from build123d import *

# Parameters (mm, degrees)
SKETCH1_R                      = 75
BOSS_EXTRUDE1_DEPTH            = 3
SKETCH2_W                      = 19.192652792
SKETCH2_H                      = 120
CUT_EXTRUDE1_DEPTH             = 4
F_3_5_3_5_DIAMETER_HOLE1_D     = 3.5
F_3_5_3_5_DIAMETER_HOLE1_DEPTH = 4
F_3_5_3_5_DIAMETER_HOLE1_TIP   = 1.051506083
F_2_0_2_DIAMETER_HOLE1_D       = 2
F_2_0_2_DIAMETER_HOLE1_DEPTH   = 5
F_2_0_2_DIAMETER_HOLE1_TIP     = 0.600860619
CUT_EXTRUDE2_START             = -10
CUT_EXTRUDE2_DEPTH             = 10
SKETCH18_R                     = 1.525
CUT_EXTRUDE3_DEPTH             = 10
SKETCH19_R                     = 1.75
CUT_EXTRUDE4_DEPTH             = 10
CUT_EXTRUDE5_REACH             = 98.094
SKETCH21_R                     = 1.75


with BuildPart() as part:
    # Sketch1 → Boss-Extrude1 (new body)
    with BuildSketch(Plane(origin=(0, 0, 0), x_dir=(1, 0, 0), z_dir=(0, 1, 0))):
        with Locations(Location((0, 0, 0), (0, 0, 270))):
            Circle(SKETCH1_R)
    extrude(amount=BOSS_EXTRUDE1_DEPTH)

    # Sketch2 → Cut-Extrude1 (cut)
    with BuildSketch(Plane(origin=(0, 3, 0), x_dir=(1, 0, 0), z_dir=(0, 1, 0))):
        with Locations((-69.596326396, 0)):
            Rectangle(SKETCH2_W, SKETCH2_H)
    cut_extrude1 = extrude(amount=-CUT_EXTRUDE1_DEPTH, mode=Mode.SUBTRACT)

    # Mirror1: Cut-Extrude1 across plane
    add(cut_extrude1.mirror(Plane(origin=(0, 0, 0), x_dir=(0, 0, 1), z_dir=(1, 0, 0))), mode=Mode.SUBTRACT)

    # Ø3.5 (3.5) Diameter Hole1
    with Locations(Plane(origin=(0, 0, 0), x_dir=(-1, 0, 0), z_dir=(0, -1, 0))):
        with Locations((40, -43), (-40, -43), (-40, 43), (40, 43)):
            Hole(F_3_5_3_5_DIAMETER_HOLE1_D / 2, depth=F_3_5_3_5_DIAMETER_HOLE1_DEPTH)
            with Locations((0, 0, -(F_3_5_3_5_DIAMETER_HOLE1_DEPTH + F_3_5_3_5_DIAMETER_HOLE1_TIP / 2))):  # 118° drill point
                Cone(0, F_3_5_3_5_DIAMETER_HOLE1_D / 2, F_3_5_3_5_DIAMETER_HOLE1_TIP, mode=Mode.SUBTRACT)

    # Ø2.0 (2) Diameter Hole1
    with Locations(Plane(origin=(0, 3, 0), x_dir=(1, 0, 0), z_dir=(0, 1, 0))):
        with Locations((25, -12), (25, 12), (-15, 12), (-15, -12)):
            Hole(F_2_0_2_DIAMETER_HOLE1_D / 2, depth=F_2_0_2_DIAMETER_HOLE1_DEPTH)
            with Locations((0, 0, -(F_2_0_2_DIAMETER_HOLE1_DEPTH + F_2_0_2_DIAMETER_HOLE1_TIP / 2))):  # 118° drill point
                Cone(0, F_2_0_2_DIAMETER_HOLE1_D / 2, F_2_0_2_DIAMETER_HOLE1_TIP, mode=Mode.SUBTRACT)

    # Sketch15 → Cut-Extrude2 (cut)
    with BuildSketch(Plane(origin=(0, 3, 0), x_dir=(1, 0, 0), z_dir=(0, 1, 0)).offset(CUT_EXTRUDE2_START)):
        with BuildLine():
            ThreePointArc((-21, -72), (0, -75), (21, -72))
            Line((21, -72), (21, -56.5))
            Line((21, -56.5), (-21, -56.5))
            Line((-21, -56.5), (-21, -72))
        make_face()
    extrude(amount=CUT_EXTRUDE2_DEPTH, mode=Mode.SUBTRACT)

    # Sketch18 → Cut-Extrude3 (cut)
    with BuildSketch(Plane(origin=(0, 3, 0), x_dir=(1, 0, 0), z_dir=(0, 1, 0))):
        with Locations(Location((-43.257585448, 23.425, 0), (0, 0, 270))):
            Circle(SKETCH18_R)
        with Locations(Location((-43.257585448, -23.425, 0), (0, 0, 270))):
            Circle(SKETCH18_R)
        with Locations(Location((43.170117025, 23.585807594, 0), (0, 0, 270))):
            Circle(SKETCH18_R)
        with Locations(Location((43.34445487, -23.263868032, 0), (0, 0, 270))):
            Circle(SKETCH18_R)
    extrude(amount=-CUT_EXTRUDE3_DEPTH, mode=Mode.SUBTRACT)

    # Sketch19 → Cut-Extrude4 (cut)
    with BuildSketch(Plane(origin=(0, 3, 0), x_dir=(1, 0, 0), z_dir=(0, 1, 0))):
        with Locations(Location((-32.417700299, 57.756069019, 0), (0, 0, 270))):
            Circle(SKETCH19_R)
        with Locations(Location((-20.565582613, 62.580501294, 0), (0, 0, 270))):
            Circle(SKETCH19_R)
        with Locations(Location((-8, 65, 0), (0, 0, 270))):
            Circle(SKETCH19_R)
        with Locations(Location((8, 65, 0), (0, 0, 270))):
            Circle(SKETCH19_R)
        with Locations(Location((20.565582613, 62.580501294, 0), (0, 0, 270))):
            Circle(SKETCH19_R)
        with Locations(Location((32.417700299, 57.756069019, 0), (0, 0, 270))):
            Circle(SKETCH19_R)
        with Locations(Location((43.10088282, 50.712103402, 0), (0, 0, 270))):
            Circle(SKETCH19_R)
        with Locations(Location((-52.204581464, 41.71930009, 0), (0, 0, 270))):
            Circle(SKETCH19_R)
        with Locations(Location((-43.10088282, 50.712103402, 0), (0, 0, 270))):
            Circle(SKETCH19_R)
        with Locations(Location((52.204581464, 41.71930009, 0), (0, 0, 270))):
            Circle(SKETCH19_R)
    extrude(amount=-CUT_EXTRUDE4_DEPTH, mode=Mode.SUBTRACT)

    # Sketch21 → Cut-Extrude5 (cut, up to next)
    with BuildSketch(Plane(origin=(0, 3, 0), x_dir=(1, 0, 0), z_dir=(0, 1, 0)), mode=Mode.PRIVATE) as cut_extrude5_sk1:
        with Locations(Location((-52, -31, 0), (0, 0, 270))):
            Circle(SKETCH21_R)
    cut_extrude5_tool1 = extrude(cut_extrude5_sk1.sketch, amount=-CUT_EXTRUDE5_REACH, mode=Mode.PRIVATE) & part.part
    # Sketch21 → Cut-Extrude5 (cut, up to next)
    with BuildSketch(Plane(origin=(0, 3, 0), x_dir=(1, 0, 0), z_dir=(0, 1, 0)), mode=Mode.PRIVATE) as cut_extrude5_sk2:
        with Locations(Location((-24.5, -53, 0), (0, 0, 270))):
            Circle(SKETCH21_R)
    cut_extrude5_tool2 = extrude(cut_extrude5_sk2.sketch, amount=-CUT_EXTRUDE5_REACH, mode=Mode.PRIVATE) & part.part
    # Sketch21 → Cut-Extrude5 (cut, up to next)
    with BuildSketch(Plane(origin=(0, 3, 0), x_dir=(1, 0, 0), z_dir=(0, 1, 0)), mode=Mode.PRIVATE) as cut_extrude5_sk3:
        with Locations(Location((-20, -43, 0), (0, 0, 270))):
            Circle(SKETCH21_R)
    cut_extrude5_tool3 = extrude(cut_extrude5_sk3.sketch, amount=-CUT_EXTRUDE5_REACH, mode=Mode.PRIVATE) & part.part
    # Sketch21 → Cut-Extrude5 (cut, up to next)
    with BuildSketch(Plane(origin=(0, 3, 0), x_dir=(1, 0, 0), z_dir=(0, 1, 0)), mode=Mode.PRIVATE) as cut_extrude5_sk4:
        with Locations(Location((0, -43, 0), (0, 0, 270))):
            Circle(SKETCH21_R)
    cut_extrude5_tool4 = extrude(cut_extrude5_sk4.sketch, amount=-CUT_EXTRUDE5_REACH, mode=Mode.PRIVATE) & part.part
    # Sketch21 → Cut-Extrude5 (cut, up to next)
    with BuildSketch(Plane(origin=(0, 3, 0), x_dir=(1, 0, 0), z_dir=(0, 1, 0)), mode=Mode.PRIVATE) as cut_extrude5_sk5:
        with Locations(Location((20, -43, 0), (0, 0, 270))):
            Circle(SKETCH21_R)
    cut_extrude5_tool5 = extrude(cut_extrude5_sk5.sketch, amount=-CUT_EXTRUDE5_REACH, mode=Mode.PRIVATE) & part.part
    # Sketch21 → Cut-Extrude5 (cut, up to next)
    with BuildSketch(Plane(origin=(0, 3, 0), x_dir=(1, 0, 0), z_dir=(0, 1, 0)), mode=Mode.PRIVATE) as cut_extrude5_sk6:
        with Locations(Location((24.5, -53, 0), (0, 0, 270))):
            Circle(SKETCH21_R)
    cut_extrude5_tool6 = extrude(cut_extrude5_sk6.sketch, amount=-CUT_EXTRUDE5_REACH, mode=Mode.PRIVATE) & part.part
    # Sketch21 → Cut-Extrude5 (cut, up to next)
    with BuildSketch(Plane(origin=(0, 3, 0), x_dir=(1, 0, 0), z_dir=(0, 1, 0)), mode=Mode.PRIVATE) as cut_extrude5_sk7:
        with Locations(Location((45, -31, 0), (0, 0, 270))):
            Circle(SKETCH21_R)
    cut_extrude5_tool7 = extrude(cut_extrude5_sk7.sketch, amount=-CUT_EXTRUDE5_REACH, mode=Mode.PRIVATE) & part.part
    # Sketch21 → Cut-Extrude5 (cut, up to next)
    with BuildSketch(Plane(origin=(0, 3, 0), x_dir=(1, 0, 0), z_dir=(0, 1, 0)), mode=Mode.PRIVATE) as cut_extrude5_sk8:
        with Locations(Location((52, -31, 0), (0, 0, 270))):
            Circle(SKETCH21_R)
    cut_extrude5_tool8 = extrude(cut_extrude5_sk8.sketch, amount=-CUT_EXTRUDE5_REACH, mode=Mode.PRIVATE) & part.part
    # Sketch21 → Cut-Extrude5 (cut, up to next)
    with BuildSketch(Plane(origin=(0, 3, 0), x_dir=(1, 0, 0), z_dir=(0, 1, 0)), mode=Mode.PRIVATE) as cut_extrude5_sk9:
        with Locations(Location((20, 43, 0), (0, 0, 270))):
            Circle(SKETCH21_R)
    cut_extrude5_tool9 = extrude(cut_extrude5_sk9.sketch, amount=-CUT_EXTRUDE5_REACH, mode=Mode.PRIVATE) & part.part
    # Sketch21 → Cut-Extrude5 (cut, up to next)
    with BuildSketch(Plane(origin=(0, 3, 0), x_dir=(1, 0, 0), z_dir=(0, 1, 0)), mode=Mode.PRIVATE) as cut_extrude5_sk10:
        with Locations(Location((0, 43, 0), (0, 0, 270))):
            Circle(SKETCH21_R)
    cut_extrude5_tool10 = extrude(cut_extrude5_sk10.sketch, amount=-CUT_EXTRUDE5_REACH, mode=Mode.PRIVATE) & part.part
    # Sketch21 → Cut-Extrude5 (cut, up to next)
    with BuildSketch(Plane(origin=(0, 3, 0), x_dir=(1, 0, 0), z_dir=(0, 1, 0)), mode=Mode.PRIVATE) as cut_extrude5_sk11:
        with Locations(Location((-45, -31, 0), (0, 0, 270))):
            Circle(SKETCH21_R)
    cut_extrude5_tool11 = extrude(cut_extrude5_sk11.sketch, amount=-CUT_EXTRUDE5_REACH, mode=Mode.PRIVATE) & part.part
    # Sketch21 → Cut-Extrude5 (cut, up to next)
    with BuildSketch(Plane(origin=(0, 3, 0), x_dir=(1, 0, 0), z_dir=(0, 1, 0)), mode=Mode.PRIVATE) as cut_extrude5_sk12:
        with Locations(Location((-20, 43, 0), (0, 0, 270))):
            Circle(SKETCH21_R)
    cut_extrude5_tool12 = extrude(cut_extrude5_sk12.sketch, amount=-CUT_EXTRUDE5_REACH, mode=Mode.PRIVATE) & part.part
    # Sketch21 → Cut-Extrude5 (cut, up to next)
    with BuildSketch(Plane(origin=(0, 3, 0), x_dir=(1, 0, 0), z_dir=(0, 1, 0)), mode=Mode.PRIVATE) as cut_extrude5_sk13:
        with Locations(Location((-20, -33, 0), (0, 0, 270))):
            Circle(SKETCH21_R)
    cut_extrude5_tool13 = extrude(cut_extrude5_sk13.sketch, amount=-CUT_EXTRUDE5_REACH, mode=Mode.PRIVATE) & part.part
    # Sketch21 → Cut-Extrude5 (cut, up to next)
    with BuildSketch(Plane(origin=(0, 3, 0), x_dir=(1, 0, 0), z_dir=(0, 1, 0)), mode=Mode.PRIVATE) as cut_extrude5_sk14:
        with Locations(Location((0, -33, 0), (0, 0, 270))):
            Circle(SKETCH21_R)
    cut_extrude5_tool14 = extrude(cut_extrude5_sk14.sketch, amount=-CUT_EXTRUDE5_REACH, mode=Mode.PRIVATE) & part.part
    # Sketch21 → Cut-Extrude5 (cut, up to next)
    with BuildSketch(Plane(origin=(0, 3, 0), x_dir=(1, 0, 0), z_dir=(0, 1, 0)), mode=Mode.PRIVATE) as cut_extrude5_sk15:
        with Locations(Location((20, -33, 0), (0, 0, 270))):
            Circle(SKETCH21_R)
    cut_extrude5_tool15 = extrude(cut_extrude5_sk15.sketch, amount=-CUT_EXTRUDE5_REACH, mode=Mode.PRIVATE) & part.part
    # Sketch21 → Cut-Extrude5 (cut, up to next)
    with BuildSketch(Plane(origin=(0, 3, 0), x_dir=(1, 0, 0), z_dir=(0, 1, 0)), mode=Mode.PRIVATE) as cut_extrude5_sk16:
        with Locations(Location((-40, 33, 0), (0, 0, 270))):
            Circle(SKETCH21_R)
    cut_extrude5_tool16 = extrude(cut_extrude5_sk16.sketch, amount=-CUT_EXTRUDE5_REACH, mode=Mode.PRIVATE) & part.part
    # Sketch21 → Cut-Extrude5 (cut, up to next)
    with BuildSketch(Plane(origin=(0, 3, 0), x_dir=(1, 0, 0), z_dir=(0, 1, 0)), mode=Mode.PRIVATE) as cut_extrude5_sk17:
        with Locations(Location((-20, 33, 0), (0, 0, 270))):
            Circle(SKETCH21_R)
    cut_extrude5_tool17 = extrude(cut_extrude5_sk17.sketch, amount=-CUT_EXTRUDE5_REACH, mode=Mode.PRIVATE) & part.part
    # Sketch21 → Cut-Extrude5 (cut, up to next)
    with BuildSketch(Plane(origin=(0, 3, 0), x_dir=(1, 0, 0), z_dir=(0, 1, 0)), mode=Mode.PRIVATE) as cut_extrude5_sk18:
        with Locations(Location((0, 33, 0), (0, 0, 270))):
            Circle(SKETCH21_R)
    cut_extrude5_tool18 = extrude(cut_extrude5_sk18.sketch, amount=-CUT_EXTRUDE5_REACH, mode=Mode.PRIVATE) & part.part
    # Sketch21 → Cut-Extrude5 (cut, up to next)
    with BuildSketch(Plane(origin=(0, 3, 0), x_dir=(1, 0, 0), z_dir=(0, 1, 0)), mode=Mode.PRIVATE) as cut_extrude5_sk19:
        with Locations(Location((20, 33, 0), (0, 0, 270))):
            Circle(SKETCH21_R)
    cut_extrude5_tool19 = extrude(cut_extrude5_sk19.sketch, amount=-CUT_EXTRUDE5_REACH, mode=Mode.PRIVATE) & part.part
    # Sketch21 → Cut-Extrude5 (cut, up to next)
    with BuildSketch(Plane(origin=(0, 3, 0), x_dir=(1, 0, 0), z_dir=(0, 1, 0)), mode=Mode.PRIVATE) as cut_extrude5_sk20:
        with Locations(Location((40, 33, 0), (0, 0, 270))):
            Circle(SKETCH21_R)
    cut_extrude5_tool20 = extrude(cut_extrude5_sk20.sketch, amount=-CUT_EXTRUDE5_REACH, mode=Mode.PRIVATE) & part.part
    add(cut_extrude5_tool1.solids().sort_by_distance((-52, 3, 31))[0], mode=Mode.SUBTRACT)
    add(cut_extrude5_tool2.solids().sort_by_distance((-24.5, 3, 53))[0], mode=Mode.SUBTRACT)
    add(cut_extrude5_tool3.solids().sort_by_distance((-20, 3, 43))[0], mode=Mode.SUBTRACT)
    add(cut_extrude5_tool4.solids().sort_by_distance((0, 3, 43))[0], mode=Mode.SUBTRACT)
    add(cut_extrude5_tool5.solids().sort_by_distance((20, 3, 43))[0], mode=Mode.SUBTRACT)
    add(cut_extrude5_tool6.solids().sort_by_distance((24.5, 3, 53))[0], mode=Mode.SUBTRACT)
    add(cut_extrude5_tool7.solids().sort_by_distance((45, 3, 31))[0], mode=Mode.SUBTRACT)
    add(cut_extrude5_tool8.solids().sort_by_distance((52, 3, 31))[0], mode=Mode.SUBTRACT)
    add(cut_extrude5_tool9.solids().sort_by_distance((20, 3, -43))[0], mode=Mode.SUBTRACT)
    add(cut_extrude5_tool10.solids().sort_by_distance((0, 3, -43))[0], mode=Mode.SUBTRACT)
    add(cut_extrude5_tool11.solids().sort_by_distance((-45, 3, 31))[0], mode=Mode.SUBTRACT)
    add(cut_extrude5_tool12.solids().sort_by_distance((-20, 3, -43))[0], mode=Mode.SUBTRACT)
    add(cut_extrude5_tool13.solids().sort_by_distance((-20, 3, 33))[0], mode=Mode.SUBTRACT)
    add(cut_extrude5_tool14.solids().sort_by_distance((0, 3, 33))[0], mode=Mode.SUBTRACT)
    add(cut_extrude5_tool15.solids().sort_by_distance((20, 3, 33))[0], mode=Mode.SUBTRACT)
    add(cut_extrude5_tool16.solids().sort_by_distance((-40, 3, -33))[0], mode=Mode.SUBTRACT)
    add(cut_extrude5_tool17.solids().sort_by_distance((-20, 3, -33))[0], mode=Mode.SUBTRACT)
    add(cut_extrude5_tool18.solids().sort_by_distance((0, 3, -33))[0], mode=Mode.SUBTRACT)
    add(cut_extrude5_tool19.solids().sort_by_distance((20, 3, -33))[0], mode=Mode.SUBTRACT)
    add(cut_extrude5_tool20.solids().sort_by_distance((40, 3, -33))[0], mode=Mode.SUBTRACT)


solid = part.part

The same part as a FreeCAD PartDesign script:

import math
import FreeCAD as App
import Part
import Sketcher
from FreeCAD import Vector

doc = App.newDocument("Part")
body = doc.addObject("PartDesign::Body", "Body")

# Sketch on XZ plane
sketch1 = body.newObject("Sketcher::SketchObject", "Sketch")
sketch1.AttachmentSupport = (doc.getObject("XZ_Plane"), [""])
sketch1.MapMode = "FlatFace"
sketch1.addGeometry(Part.Circle(Vector(0, 0, 0), Vector(0, 0, 1), 75), False)
sketch1.addConstraint(Sketcher.Constraint("Coincident", 0, 3, -1, 1))
sketch1.addConstraint(Sketcher.Constraint("Diameter", 0, 150.0))
pad1 = body.newObject("PartDesign::Pad", "Pad")
pad1.Profile = sketch1
pad1.Length = 3
pad1.Reversed = True

# Sketch on XZ plane
sketch2 = body.newObject("Sketcher::SketchObject", "Sketch001")
sketch2.AttachmentSupport = (doc.getObject("XZ_Plane"), [""])
sketch2.MapMode = "FlatFace"
sketch2.AttachmentOffset = App.Placement(Vector(0, 0, -3), App.Rotation())
sketch2.addGeometry(Part.LineSegment(Vector(-79, -60, 0), Vector(-79, 60, 0)), False)
sketch2.addGeometry(Part.LineSegment(Vector(-79, 60, 0), Vector(-60, 60, 0)), False)
sketch2.addGeometry(Part.LineSegment(Vector(-60, 60, 0), Vector(-60, -60, 0)), False)
sketch2.addGeometry(Part.LineSegment(Vector(-60, -60, 0), Vector(-79, -60, 0)), False)
sketch2.addConstraint(Sketcher.Constraint("Coincident", 0, 2, 1, 1))
sketch2.addConstraint(Sketcher.Constraint("Coincident", 1, 2, 2, 1))
sketch2.addConstraint(Sketcher.Constraint("Coincident", 2, 2, 3, 1))
sketch2.addConstraint(Sketcher.Constraint("Coincident", 3, 2, 0, 1))
sketch2.addConstraint(Sketcher.Constraint("Vertical", 0))
sketch2.addConstraint(Sketcher.Constraint("Horizontal", 1))
sketch2.addConstraint(Sketcher.Constraint("Vertical", 2))
sketch2.addConstraint(Sketcher.Constraint("Horizontal", 3))
sketch2.addConstraint(Sketcher.Constraint("DistanceY", 0, 1, 0, 2, 120.0))
sketch2.addConstraint(Sketcher.Constraint("DistanceY", -1, 1, 0, 2, 60.0))
sketch2.addConstraint(Sketcher.Constraint("DistanceX", 1, 2, -1, 1, 60.0))
sketch2.addConstraint(Sketcher.Constraint("DistanceX", 1, 1, 1, 2, 19.192653))
pocket1 = body.newObject("PartDesign::Pocket", "Pocket")
pocket1.Profile = sketch2
pocket1.Length = 4
pocket1.Reversed = True
doc.recompute()

mirrored = body.newObject("PartDesign::Mirrored", "Mirrored")
mirrored.Originals = [pocket1]
mirrored.MirrorPlane = (doc.getObject("YZ_Plane"), [""])
body.Tip = mirrored

# Sketch on XZ plane
sketch3 = body.newObject("Sketcher::SketchObject", "Sketch002")
sketch3.AttachmentSupport = (doc.getObject("XZ_Plane"), [""])
sketch3.MapMode = "FlatFace"
sketch3.addGeometry(Part.Circle(Vector(-40, 43, 0), Vector(0, 0, 1), 1.8), False)
sketch3.addGeometry(Part.Circle(Vector(40, 43, 0), Vector(0, 0, 1), 1.8), False)
sketch3.addGeometry(Part.Circle(Vector(40, -43, 0), Vector(0, 0, 1), 1.8), False)
sketch3.addGeometry(Part.Circle(Vector(-40, -43, 0), Vector(0, 0, 1), 1.8), False)
sketch3.addConstraint(Sketcher.Constraint("Equal", 0, 1))
sketch3.addConstraint(Sketcher.Constraint("Equal", 1, 2))
sketch3.addConstraint(Sketcher.Constraint("Equal", 2, 3))
sketch3.addConstraint(Sketcher.Constraint("Symmetric", 0, 3, 2, 3, -1, 1))
sketch3.addConstraint(Sketcher.Constraint("Symmetric", 1, 3, 3, 3, -1, 1))
sketch3.addConstraint(Sketcher.Constraint("Symmetric", 0, 3, 1, 3, -2))
sketch3.addConstraint(Sketcher.Constraint("Diameter", 0, 3.5))
sketch3.addConstraint(Sketcher.Constraint("DistanceX", 0, 3, -1, 1, 40.0))
sketch3.addConstraint(Sketcher.Constraint("DistanceY", -1, 1, 0, 3, 43.0))
doc.recompute()
hole = body.newObject("PartDesign::Hole", "Hole")
hole.Profile = sketch3
hole.ThreadType = "None"
hole.Diameter = 3.5
hole.DepthType = "Dimension"
hole.Depth = 4
hole.DrillPoint = "Angled"
hole.DrillPointAngle = 118

# Sketch on XZ plane
sketch4 = body.newObject("Sketcher::SketchObject", "Sketch003")
sketch4.AttachmentSupport = (doc.getObject("XZ_Plane"), [""])
sketch4.MapMode = "FlatFace"
sketch4.AttachmentOffset = App.Placement(Vector(0, 0, -3), App.Rotation())
sketch4.addGeometry(Part.Circle(Vector(25, 12, 0), Vector(0, 0, 1), 1), False)
sketch4.addGeometry(Part.Circle(Vector(25, -12, 0), Vector(0, 0, 1), 1), False)
sketch4.addGeometry(Part.Circle(Vector(-15, -12, 0), Vector(0, 0, 1), 1), False)
sketch4.addGeometry(Part.Circle(Vector(-15, 12, 0), Vector(0, 0, 1), 1), False)
sketch4.addConstraint(Sketcher.Constraint("Equal", 0, 1))
sketch4.addConstraint(Sketcher.Constraint("Equal", 1, 2))
sketch4.addConstraint(Sketcher.Constraint("Equal", 2, 3))
sketch4.addConstraint(Sketcher.Constraint("Symmetric", 0, 3, 1, 3, -1))
sketch4.addConstraint(Sketcher.Constraint("Symmetric", 2, 3, 3, 3, -1))
sketch4.addConstraint(Sketcher.Constraint("Horizontal", 1, 3, 2, 3))
sketch4.addConstraint(Sketcher.Constraint("Diameter", 0, 2.0))
sketch4.addConstraint(Sketcher.Constraint("DistanceX", -1, 1, 0, 3, 25.0))
sketch4.addConstraint(Sketcher.Constraint("DistanceY", -1, 1, 0, 3, 12.0))
sketch4.addConstraint(Sketcher.Constraint("DistanceX", 2, 3, -1, 1, 15.0))
doc.recompute()
hole2 = body.newObject("PartDesign::Hole", "Hole001")
hole2.Profile = sketch4
hole2.ThreadType = "None"
hole2.Diameter = 2
hole2.DepthType = "Dimension"
hole2.Depth = 5
hole2.DrillPoint = "Angled"
hole2.DrillPointAngle = 118
hole2.Reversed = True

# Sketch on XZ plane
sketch5 = body.newObject("Sketcher::SketchObject", "Sketch004")
sketch5.AttachmentSupport = (doc.getObject("XZ_Plane"), [""])
sketch5.MapMode = "FlatFace"
sketch5.AttachmentOffset = App.Placement(Vector(0, 0, 7), App.Rotation())
sketch5.addGeometry(Part.ArcOfCircle(Part.Circle(Vector(0, 0, 0), Vector(0, 0, 1), 75), math.radians(74), math.radians(106)), False)
sketch5.addGeometry(Part.LineSegment(Vector(21, 72, 0), Vector(21, 56, 0)), False)
sketch5.addGeometry(Part.LineSegment(Vector(21, 56, 0), Vector(-21, 56, 0)), False)
sketch5.addGeometry(Part.LineSegment(Vector(-21, 56, 0), Vector(-21, 72, 0)), False)
sketch5.addConstraint(Sketcher.Constraint("Coincident", 0, 1, 1, 1))
sketch5.addConstraint(Sketcher.Constraint("Coincident", 1, 2, 2, 1))
sketch5.addConstraint(Sketcher.Constraint("Coincident", 2, 2, 3, 1))
sketch5.addConstraint(Sketcher.Constraint("Coincident", 3, 2, 0, 2))
sketch5.addConstraint(Sketcher.Constraint("Vertical", 1))
sketch5.addConstraint(Sketcher.Constraint("Horizontal", 2))
sketch5.addConstraint(Sketcher.Constraint("Vertical", 3))
sketch5.addConstraint(Sketcher.Constraint("Coincident", 0, 3, -1, 1))
sketch5.addConstraint(Sketcher.Constraint("Horizontal", 0, 1, 3, 2))
sketch5.addConstraint(Sketcher.Constraint("Radius", 0, 75.0))
sketch5.addConstraint(Sketcher.Constraint("DistanceX", 2, 2, 2, 1, 42.0))
sketch5.addConstraint(Sketcher.Constraint("DistanceY", 1, 2, 1, 1, 15.5))
pocket2 = body.newObject("PartDesign::Pocket", "Pocket001")
pocket2.Profile = sketch5
pocket2.Length = 10

# Sketch on XZ plane
sketch6 = body.newObject("Sketcher::SketchObject", "Sketch005")
sketch6.AttachmentSupport = (doc.getObject("XZ_Plane"), [""])
sketch6.MapMode = "FlatFace"
sketch6.AttachmentOffset = App.Placement(Vector(0, 0, -3), App.Rotation())
sketch6.addGeometry(Part.Circle(Vector(-43.3, -23.4, 0), Vector(0, 0, 1), 1.5), False)
sketch6.addGeometry(Part.Circle(Vector(-43.3, 23.4, 0), Vector(0, 0, 1), 1.5), False)
sketch6.addGeometry(Part.Circle(Vector(43.2, -23.6, 0), Vector(0, 0, 1), 1.5), False)
sketch6.addGeometry(Part.Circle(Vector(43.3, 23.3, 0), Vector(0, 0, 1), 1.5), False)
sketch6.addConstraint(Sketcher.Constraint("Equal", 0, 1))
sketch6.addConstraint(Sketcher.Constraint("Equal", 1, 2))
sketch6.addConstraint(Sketcher.Constraint("Equal", 2, 3))
sketch6.addConstraint(Sketcher.Constraint("Symmetric", 0, 3, 1, 3, -1))
sketch6.addConstraint(Sketcher.Constraint("Diameter", 0, 3.05))
sketch6.addConstraint(Sketcher.Constraint("DistanceY", 0, 3, 1, 3, 46.85))
sketch6.addConstraint(Sketcher.Constraint("DistanceY", -1, 1, 3, 3, 23.263868))
sketch6.addConstraint(Sketcher.Constraint("DistanceX", 1, 3, 3, 3, 86.60204))
sketch6.addConstraint(Sketcher.Constraint("DistanceX", 0, 3, -1, 1, 43.257585))
sketch6.addConstraint(Sketcher.Constraint("DistanceX", -1, 1, 2, 3, 43.170117))
sketch6.addConstraint(Sketcher.Constraint("DistanceY", 2, 3, -1, 1, 23.585808))
pocket3 = body.newObject("PartDesign::Pocket", "Pocket002")
pocket3.Profile = sketch6
pocket3.Length = 10
pocket3.Reversed = True

# Sketch on XZ plane
sketch7 = body.newObject("Sketcher::SketchObject", "Sketch006")
sketch7.AttachmentSupport = (doc.getObject("XZ_Plane"), [""])
sketch7.MapMode = "FlatFace"
sketch7.AttachmentOffset = App.Placement(Vector(0, 0, -3), App.Rotation())
sketch7.addGeometry(Part.Circle(Vector(-32.4, -57.8, 0), Vector(0, 0, 1), 1.8), False)
sketch7.addGeometry(Part.Circle(Vector(-20.6, -62.6, 0), Vector(0, 0, 1), 1.8), False)
sketch7.addGeometry(Part.Circle(Vector(-8, -65, 0), Vector(0, 0, 1), 1.8), False)
sketch7.addGeometry(Part.Circle(Vector(8, -65, 0), Vector(0, 0, 1), 1.8), False)
sketch7.addGeometry(Part.Circle(Vector(20.6, -62.6, 0), Vector(0, 0, 1), 1.8), False)
sketch7.addGeometry(Part.Circle(Vector(32.4, -57.8, 0), Vector(0, 0, 1), 1.8), False)
sketch7.addGeometry(Part.Circle(Vector(43.1, -50.7, 0), Vector(0, 0, 1), 1.8), False)
sketch7.addGeometry(Part.Circle(Vector(-52.2, -41.7, 0), Vector(0, 0, 1), 1.8), False)
sketch7.addGeometry(Part.Circle(Vector(-43.1, -50.7, 0), Vector(0, 0, 1), 1.8), False)
sketch7.addGeometry(Part.Circle(Vector(52.2, -41.7, 0), Vector(0, 0, 1), 1.8), False)
sketch7.addConstraint(Sketcher.Constraint("Equal", 0, 1))
sketch7.addConstraint(Sketcher.Constraint("Equal", 1, 2))
sketch7.addConstraint(Sketcher.Constraint("Equal", 2, 3))
sketch7.addConstraint(Sketcher.Constraint("Equal", 3, 4))
sketch7.addConstraint(Sketcher.Constraint("Equal", 4, 5))
sketch7.addConstraint(Sketcher.Constraint("Equal", 5, 6))
sketch7.addConstraint(Sketcher.Constraint("Equal", 6, 7))
sketch7.addConstraint(Sketcher.Constraint("Equal", 7, 8))
sketch7.addConstraint(Sketcher.Constraint("Equal", 8, 9))
sketch7.addConstraint(Sketcher.Constraint("Symmetric", 2, 3, 3, 3, -2))
sketch7.addConstraint(Sketcher.Constraint("Symmetric", 1, 3, 4, 3, -2))
sketch7.addConstraint(Sketcher.Constraint("Symmetric", 0, 3, 5, 3, -2))
sketch7.addConstraint(Sketcher.Constraint("Symmetric", 6, 3, 8, 3, -2))
sketch7.addConstraint(Sketcher.Constraint("Symmetric", 7, 3, 9, 3, -2))
sketch7.addConstraint(Sketcher.Constraint("Diameter", 0, 3.5))
sketch7.addConstraint(Sketcher.Constraint("DistanceX", 2, 3, -1, 1, 8.0))
sketch7.addConstraint(Sketcher.Constraint("DistanceY", 2, 3, -1, 1, 65.0))
sketch7.addConstraint(Sketcher.Constraint("DistanceX", 7, 3, 1, 3, 31.638999))
sketch7.addConstraint(Sketcher.Constraint("DistanceX", 0, 3, -1, 1, 32.4177))
sketch7.addConstraint(Sketcher.Constraint("DistanceY", 1, 3, -1, 1, 62.580501))
sketch7.addConstraint(Sketcher.Constraint("DistanceY", 7, 3, -1, 1, 41.7193))
sketch7.addConstraint(Sketcher.Constraint("DistanceX", 4, 3, 6, 3, 22.5353))
sketch7.addConstraint(Sketcher.Constraint("DistanceY", 0, 3, -1, 1, 57.756069))
sketch7.addConstraint(Sketcher.Constraint("DistanceX", 7, 3, -1, 1, 52.204581))
sketch7.addConstraint(Sketcher.Constraint("DistanceY", 6, 3, -1, 1, 50.712103))
pocket4 = body.newObject("PartDesign::Pocket", "Pocket003")
pocket4.Profile = sketch7
pocket4.Length = 10
pocket4.Reversed = True

# Sketch on XZ plane
sketch8 = body.newObject("Sketcher::SketchObject", "Sketch007")
sketch8.AttachmentSupport = (doc.getObject("XZ_Plane"), [""])
sketch8.MapMode = "FlatFace"
sketch8.AttachmentOffset = App.Placement(Vector(0, 0, -3), App.Rotation())
sketch8.addGeometry(Part.Circle(Vector(-52, 31, 0), Vector(0, 0, 1), 1.8), False)
sketch8.addConstraint(Sketcher.Constraint("Diameter", 0, 3.5))
sketch8.addConstraint(Sketcher.Constraint("DistanceX", 0, 3, -1, 1, 52.0))
sketch8.addConstraint(Sketcher.Constraint("DistanceY", -1, 1, 0, 3, 31.0))
pocket5 = body.newObject("PartDesign::Pocket", "Pocket004")
pocket5.Profile = sketch8
pocket5.Type = "UpToFirst"
pocket5.Reversed = True

# Sketch on XZ plane
sketch9 = body.newObject("Sketcher::SketchObject", "Sketch008")
sketch9.AttachmentSupport = (doc.getObject("XZ_Plane"), [""])
sketch9.MapMode = "FlatFace"
sketch9.AttachmentOffset = App.Placement(Vector(0, 0, -3), App.Rotation())
sketch9.addGeometry(Part.Circle(Vector(-24.5, 53, 0), Vector(0, 0, 1), 1.8), False)
sketch9.addConstraint(Sketcher.Constraint("Diameter", 0, 3.5))
sketch9.addConstraint(Sketcher.Constraint("DistanceY", -1, 1, 0, 3, 53.0))
sketch9.addConstraint(Sketcher.Constraint("DistanceX", 0, 3, -1, 1, 24.5))
pocket6 = body.newObject("PartDesign::Pocket", "Pocket005")
pocket6.Profile = sketch9
pocket6.Type = "UpToFirst"
pocket6.Reversed = True

# Sketch on XZ plane
sketch10 = body.newObject("Sketcher::SketchObject", "Sketch009")
sketch10.AttachmentSupport = (doc.getObject("XZ_Plane"), [""])
sketch10.MapMode = "FlatFace"
sketch10.AttachmentOffset = App.Placement(Vector(0, 0, -3), App.Rotation())
sketch10.addGeometry(Part.Circle(Vector(-20, 43, 0), Vector(0, 0, 1), 1.8), False)
sketch10.addConstraint(Sketcher.Constraint("Diameter", 0, 3.5))
sketch10.addConstraint(Sketcher.Constraint("DistanceX", 0, 3, -1, 1, 20.0))
sketch10.addConstraint(Sketcher.Constraint("DistanceY", -1, 1, 0, 3, 43.0))
pocket7 = body.newObject("PartDesign::Pocket", "Pocket006")
pocket7.Profile = sketch10
pocket7.Type = "UpToFirst"
pocket7.Reversed = True

# Sketch on XZ plane
sketch11 = body.newObject("Sketcher::SketchObject", "Sketch010")
sketch11.AttachmentSupport = (doc.getObject("XZ_Plane"), [""])
sketch11.MapMode = "FlatFace"
sketch11.AttachmentOffset = App.Placement(Vector(0, 0, -3), App.Rotation())
sketch11.addGeometry(Part.Circle(Vector(0, 43, 0), Vector(0, 0, 1), 1.8), False)
sketch11.addConstraint(Sketcher.Constraint("PointOnObject", 0, 3, -2))
sketch11.addConstraint(Sketcher.Constraint("Diameter", 0, 3.5))
sketch11.addConstraint(Sketcher.Constraint("DistanceY", -1, 1, 0, 3, 43.0))
pocket8 = body.newObject("PartDesign::Pocket", "Pocket007")
pocket8.Profile = sketch11
pocket8.Type = "UpToFirst"
pocket8.Reversed = True

# Sketch on XZ plane
sketch12 = body.newObject("Sketcher::SketchObject", "Sketch011")
sketch12.AttachmentSupport = (doc.getObject("XZ_Plane"), [""])
sketch12.MapMode = "FlatFace"
sketch12.AttachmentOffset = App.Placement(Vector(0, 0, -3), App.Rotation())
sketch12.addGeometry(Part.Circle(Vector(20, 43, 0), Vector(0, 0, 1), 1.8), False)
sketch12.addConstraint(Sketcher.Constraint("Diameter", 0, 3.5))
sketch12.addConstraint(Sketcher.Constraint("DistanceX", -1, 1, 0, 3, 20.0))
sketch12.addConstraint(Sketcher.Constraint("DistanceY", -1, 1, 0, 3, 43.0))
pocket9 = body.newObject("PartDesign::Pocket", "Pocket008")
pocket9.Profile = sketch12
pocket9.Type = "UpToFirst"
pocket9.Reversed = True

# Sketch on XZ plane
sketch13 = body.newObject("Sketcher::SketchObject", "Sketch012")
sketch13.AttachmentSupport = (doc.getObject("XZ_Plane"), [""])
sketch13.MapMode = "FlatFace"
sketch13.AttachmentOffset = App.Placement(Vector(0, 0, -3), App.Rotation())
sketch13.addGeometry(Part.Circle(Vector(24.5, 53, 0), Vector(0, 0, 1), 1.8), False)
sketch13.addConstraint(Sketcher.Constraint("Diameter", 0, 3.5))
sketch13.addConstraint(Sketcher.Constraint("DistanceY", -1, 1, 0, 3, 53.0))
sketch13.addConstraint(Sketcher.Constraint("DistanceX", -1, 1, 0, 3, 24.5))
pocket10 = body.newObject("PartDesign::Pocket", "Pocket009")
pocket10.Profile = sketch13
pocket10.Type = "UpToFirst"
pocket10.Reversed = True

# Sketch on XZ plane
sketch14 = body.newObject("Sketcher::SketchObject", "Sketch013")
sketch14.AttachmentSupport = (doc.getObject("XZ_Plane"), [""])
sketch14.MapMode = "FlatFace"
sketch14.AttachmentOffset = App.Placement(Vector(0, 0, -3), App.Rotation())
sketch14.addGeometry(Part.Circle(Vector(45, 31, 0), Vector(0, 0, 1), 1.8), False)
sketch14.addConstraint(Sketcher.Constraint("Diameter", 0, 3.5))
sketch14.addConstraint(Sketcher.Constraint("DistanceX", -1, 1, 0, 3, 45.0))
sketch14.addConstraint(Sketcher.Constraint("DistanceY", -1, 1, 0, 3, 31.0))
pocket11 = body.newObject("PartDesign::Pocket", "Pocket010")
pocket11.Profile = sketch14
pocket11.Type = "UpToFirst"
pocket11.Reversed = True

# Sketch on XZ plane
sketch15 = body.newObject("Sketcher::SketchObject", "Sketch014")
sketch15.AttachmentSupport = (doc.getObject("XZ_Plane"), [""])
sketch15.MapMode = "FlatFace"
sketch15.AttachmentOffset = App.Placement(Vector(0, 0, -3), App.Rotation())
sketch15.addGeometry(Part.Circle(Vector(52, 31, 0), Vector(0, 0, 1), 1.8), False)
sketch15.addConstraint(Sketcher.Constraint("Diameter", 0, 3.5))
sketch15.addConstraint(Sketcher.Constraint("DistanceX", -1, 1, 0, 3, 52.0))
sketch15.addConstraint(Sketcher.Constraint("DistanceY", -1, 1, 0, 3, 31.0))
pocket12 = body.newObject("PartDesign::Pocket", "Pocket011")
pocket12.Profile = sketch15
pocket12.Type = "UpToFirst"
pocket12.Reversed = True

# Sketch on XZ plane
sketch16 = body.newObject("Sketcher::SketchObject", "Sketch015")
sketch16.AttachmentSupport = (doc.getObject("XZ_Plane"), [""])
sketch16.MapMode = "FlatFace"
sketch16.AttachmentOffset = App.Placement(Vector(0, 0, -3), App.Rotation())
sketch16.addGeometry(Part.Circle(Vector(20, -43, 0), Vector(0, 0, 1), 1.8), False)
sketch16.addConstraint(Sketcher.Constraint("Diameter", 0, 3.5))
sketch16.addConstraint(Sketcher.Constraint("DistanceX", -1, 1, 0, 3, 20.0))
sketch16.addConstraint(Sketcher.Constraint("DistanceY", 0, 3, -1, 1, 43.0))
pocket13 = body.newObject("PartDesign::Pocket", "Pocket012")
pocket13.Profile = sketch16
pocket13.Type = "UpToFirst"
pocket13.Reversed = True

# Sketch on XZ plane
sketch17 = body.newObject("Sketcher::SketchObject", "Sketch016")
sketch17.AttachmentSupport = (doc.getObject("XZ_Plane"), [""])
sketch17.MapMode = "FlatFace"
sketch17.AttachmentOffset = App.Placement(Vector(0, 0, -3), App.Rotation())
sketch17.addGeometry(Part.Circle(Vector(0, -43, 0), Vector(0, 0, 1), 1.8), False)
sketch17.addConstraint(Sketcher.Constraint("PointOnObject", 0, 3, -2))
sketch17.addConstraint(Sketcher.Constraint("Diameter", 0, 3.5))
sketch17.addConstraint(Sketcher.Constraint("DistanceY", 0, 3, -1, 1, 43.0))
pocket14 = body.newObject("PartDesign::Pocket", "Pocket013")
pocket14.Profile = sketch17
pocket14.Type = "UpToFirst"
pocket14.Reversed = True

# Sketch on XZ plane
sketch18 = body.newObject("Sketcher::SketchObject", "Sketch017")
sketch18.AttachmentSupport = (doc.getObject("XZ_Plane"), [""])
sketch18.MapMode = "FlatFace"
sketch18.AttachmentOffset = App.Placement(Vector(0, 0, -3), App.Rotation())
sketch18.addGeometry(Part.Circle(Vector(-45, 31, 0), Vector(0, 0, 1), 1.8), False)
sketch18.addConstraint(Sketcher.Constraint("Diameter", 0, 3.5))
sketch18.addConstraint(Sketcher.Constraint("DistanceX", 0, 3, -1, 1, 45.0))
sketch18.addConstraint(Sketcher.Constraint("DistanceY", -1, 1, 0, 3, 31.0))
pocket15 = body.newObject("PartDesign::Pocket", "Pocket014")
pocket15.Profile = sketch18
pocket15.Type = "UpToFirst"
pocket15.Reversed = True

# Sketch on XZ plane
sketch19 = body.newObject("Sketcher::SketchObject", "Sketch018")
sketch19.AttachmentSupport = (doc.getObject("XZ_Plane"), [""])
sketch19.MapMode = "FlatFace"
sketch19.AttachmentOffset = App.Placement(Vector(0, 0, -3), App.Rotation())
sketch19.addGeometry(Part.Circle(Vector(-20, -43, 0), Vector(0, 0, 1), 1.8), False)
sketch19.addConstraint(Sketcher.Constraint("Diameter", 0, 3.5))
sketch19.addConstraint(Sketcher.Constraint("DistanceX", 0, 3, -1, 1, 20.0))
sketch19.addConstraint(Sketcher.Constraint("DistanceY", 0, 3, -1, 1, 43.0))
pocket16 = body.newObject("PartDesign::Pocket", "Pocket015")
pocket16.Profile = sketch19
pocket16.Type = "UpToFirst"
pocket16.Reversed = True

# Sketch on XZ plane
sketch20 = body.newObject("Sketcher::SketchObject", "Sketch019")
sketch20.AttachmentSupport = (doc.getObject("XZ_Plane"), [""])
sketch20.MapMode = "FlatFace"
sketch20.AttachmentOffset = App.Placement(Vector(0, 0, -3), App.Rotation())
sketch20.addGeometry(Part.Circle(Vector(-20, 33, 0), Vector(0, 0, 1), 1.8), False)
sketch20.addConstraint(Sketcher.Constraint("Diameter", 0, 3.5))
sketch20.addConstraint(Sketcher.Constraint("DistanceX", 0, 3, -1, 1, 20.0))
sketch20.addConstraint(Sketcher.Constraint("DistanceY", -1, 1, 0, 3, 33.0))
pocket17 = body.newObject("PartDesign::Pocket", "Pocket016")
pocket17.Profile = sketch20
pocket17.Type = "UpToFirst"
pocket17.Reversed = True

# Sketch on XZ plane
sketch21 = body.newObject("Sketcher::SketchObject", "Sketch020")
sketch21.AttachmentSupport = (doc.getObject("XZ_Plane"), [""])
sketch21.MapMode = "FlatFace"
sketch21.AttachmentOffset = App.Placement(Vector(0, 0, -3), App.Rotation())
sketch21.addGeometry(Part.Circle(Vector(0, 33, 0), Vector(0, 0, 1), 1.8), False)
sketch21.addConstraint(Sketcher.Constraint("PointOnObject", 0, 3, -2))
sketch21.addConstraint(Sketcher.Constraint("Diameter", 0, 3.5))
sketch21.addConstraint(Sketcher.Constraint("DistanceY", -1, 1, 0, 3, 33.0))
pocket18 = body.newObject("PartDesign::Pocket", "Pocket017")
pocket18.Profile = sketch21
pocket18.Type = "UpToFirst"
pocket18.Reversed = True

# Sketch on XZ plane
sketch22 = body.newObject("Sketcher::SketchObject", "Sketch021")
sketch22.AttachmentSupport = (doc.getObject("XZ_Plane"), [""])
sketch22.MapMode = "FlatFace"
sketch22.AttachmentOffset = App.Placement(Vector(0, 0, -3), App.Rotation())
sketch22.addGeometry(Part.Circle(Vector(20, 33, 0), Vector(0, 0, 1), 1.8), False)
sketch22.addConstraint(Sketcher.Constraint("Diameter", 0, 3.5))
sketch22.addConstraint(Sketcher.Constraint("DistanceX", -1, 1, 0, 3, 20.0))
sketch22.addConstraint(Sketcher.Constraint("DistanceY", -1, 1, 0, 3, 33.0))
pocket19 = body.newObject("PartDesign::Pocket", "Pocket018")
pocket19.Profile = sketch22
pocket19.Type = "UpToFirst"
pocket19.Reversed = True

# Sketch on XZ plane
sketch23 = body.newObject("Sketcher::SketchObject", "Sketch022")
sketch23.AttachmentSupport = (doc.getObject("XZ_Plane"), [""])
sketch23.MapMode = "FlatFace"
sketch23.AttachmentOffset = App.Placement(Vector(0, 0, -3), App.Rotation())
sketch23.addGeometry(Part.Circle(Vector(-40, -33, 0), Vector(0, 0, 1), 1.8), False)
sketch23.addConstraint(Sketcher.Constraint("Diameter", 0, 3.5))
sketch23.addConstraint(Sketcher.Constraint("DistanceX", 0, 3, -1, 1, 40.0))
sketch23.addConstraint(Sketcher.Constraint("DistanceY", 0, 3, -1, 1, 33.0))
pocket20 = body.newObject("PartDesign::Pocket", "Pocket019")
pocket20.Profile = sketch23
pocket20.Type = "UpToFirst"
pocket20.Reversed = True

# Sketch on XZ plane
sketch24 = body.newObject("Sketcher::SketchObject", "Sketch023")
sketch24.AttachmentSupport = (doc.getObject("XZ_Plane"), [""])
sketch24.MapMode = "FlatFace"
sketch24.AttachmentOffset = App.Placement(Vector(0, 0, -3), App.Rotation())
sketch24.addGeometry(Part.Circle(Vector(-20, -33, 0), Vector(0, 0, 1), 1.8), False)
sketch24.addConstraint(Sketcher.Constraint("Diameter", 0, 3.5))
sketch24.addConstraint(Sketcher.Constraint("DistanceX", 0, 3, -1, 1, 20.0))
sketch24.addConstraint(Sketcher.Constraint("DistanceY", 0, 3, -1, 1, 33.0))
pocket21 = body.newObject("PartDesign::Pocket", "Pocket020")
pocket21.Profile = sketch24
pocket21.Type = "UpToFirst"
pocket21.Reversed = True

# Sketch on XZ plane
sketch25 = body.newObject("Sketcher::SketchObject", "Sketch024")
sketch25.AttachmentSupport = (doc.getObject("XZ_Plane"), [""])
sketch25.MapMode = "FlatFace"
sketch25.AttachmentOffset = App.Placement(Vector(0, 0, -3), App.Rotation())
sketch25.addGeometry(Part.Circle(Vector(0, -33, 0), Vector(0, 0, 1), 1.8), False)
sketch25.addConstraint(Sketcher.Constraint("PointOnObject", 0, 3, -2))
sketch25.addConstraint(Sketcher.Constraint("Diameter", 0, 3.5))
sketch25.addConstraint(Sketcher.Constraint("DistanceY", 0, 3, -1, 1, 33.0))
pocket22 = body.newObject("PartDesign::Pocket", "Pocket021")
pocket22.Profile = sketch25
pocket22.Type = "UpToFirst"
pocket22.Reversed = True

# Sketch on XZ plane
sketch26 = body.newObject("Sketcher::SketchObject", "Sketch025")
sketch26.AttachmentSupport = (doc.getObject("XZ_Plane"), [""])
sketch26.MapMode = "FlatFace"
sketch26.AttachmentOffset = App.Placement(Vector(0, 0, -3), App.Rotation())
sketch26.addGeometry(Part.Circle(Vector(20, -33, 0), Vector(0, 0, 1), 1.8), False)
sketch26.addConstraint(Sketcher.Constraint("Diameter", 0, 3.5))
sketch26.addConstraint(Sketcher.Constraint("DistanceX", -1, 1, 0, 3, 20.0))
sketch26.addConstraint(Sketcher.Constraint("DistanceY", 0, 3, -1, 1, 33.0))
pocket23 = body.newObject("PartDesign::Pocket", "Pocket022")
pocket23.Profile = sketch26
pocket23.Type = "UpToFirst"
pocket23.Reversed = True

# Sketch on XZ plane
sketch27 = body.newObject("Sketcher::SketchObject", "Sketch026")
sketch27.AttachmentSupport = (doc.getObject("XZ_Plane"), [""])
sketch27.MapMode = "FlatFace"
sketch27.AttachmentOffset = App.Placement(Vector(0, 0, -3), App.Rotation())
sketch27.addGeometry(Part.Circle(Vector(40, -33, 0), Vector(0, 0, 1), 1.8), False)
sketch27.addConstraint(Sketcher.Constraint("Diameter", 0, 3.5))
sketch27.addConstraint(Sketcher.Constraint("DistanceX", -1, 1, 0, 3, 40.0))
sketch27.addConstraint(Sketcher.Constraint("DistanceY", 0, 3, -1, 1, 33.0))
pocket24 = body.newObject("PartDesign::Pocket", "Pocket023")
pocket24.Profile = sketch27
pocket24.Type = "UpToFirst"
pocket24.Reversed = True

doc.recompute()
